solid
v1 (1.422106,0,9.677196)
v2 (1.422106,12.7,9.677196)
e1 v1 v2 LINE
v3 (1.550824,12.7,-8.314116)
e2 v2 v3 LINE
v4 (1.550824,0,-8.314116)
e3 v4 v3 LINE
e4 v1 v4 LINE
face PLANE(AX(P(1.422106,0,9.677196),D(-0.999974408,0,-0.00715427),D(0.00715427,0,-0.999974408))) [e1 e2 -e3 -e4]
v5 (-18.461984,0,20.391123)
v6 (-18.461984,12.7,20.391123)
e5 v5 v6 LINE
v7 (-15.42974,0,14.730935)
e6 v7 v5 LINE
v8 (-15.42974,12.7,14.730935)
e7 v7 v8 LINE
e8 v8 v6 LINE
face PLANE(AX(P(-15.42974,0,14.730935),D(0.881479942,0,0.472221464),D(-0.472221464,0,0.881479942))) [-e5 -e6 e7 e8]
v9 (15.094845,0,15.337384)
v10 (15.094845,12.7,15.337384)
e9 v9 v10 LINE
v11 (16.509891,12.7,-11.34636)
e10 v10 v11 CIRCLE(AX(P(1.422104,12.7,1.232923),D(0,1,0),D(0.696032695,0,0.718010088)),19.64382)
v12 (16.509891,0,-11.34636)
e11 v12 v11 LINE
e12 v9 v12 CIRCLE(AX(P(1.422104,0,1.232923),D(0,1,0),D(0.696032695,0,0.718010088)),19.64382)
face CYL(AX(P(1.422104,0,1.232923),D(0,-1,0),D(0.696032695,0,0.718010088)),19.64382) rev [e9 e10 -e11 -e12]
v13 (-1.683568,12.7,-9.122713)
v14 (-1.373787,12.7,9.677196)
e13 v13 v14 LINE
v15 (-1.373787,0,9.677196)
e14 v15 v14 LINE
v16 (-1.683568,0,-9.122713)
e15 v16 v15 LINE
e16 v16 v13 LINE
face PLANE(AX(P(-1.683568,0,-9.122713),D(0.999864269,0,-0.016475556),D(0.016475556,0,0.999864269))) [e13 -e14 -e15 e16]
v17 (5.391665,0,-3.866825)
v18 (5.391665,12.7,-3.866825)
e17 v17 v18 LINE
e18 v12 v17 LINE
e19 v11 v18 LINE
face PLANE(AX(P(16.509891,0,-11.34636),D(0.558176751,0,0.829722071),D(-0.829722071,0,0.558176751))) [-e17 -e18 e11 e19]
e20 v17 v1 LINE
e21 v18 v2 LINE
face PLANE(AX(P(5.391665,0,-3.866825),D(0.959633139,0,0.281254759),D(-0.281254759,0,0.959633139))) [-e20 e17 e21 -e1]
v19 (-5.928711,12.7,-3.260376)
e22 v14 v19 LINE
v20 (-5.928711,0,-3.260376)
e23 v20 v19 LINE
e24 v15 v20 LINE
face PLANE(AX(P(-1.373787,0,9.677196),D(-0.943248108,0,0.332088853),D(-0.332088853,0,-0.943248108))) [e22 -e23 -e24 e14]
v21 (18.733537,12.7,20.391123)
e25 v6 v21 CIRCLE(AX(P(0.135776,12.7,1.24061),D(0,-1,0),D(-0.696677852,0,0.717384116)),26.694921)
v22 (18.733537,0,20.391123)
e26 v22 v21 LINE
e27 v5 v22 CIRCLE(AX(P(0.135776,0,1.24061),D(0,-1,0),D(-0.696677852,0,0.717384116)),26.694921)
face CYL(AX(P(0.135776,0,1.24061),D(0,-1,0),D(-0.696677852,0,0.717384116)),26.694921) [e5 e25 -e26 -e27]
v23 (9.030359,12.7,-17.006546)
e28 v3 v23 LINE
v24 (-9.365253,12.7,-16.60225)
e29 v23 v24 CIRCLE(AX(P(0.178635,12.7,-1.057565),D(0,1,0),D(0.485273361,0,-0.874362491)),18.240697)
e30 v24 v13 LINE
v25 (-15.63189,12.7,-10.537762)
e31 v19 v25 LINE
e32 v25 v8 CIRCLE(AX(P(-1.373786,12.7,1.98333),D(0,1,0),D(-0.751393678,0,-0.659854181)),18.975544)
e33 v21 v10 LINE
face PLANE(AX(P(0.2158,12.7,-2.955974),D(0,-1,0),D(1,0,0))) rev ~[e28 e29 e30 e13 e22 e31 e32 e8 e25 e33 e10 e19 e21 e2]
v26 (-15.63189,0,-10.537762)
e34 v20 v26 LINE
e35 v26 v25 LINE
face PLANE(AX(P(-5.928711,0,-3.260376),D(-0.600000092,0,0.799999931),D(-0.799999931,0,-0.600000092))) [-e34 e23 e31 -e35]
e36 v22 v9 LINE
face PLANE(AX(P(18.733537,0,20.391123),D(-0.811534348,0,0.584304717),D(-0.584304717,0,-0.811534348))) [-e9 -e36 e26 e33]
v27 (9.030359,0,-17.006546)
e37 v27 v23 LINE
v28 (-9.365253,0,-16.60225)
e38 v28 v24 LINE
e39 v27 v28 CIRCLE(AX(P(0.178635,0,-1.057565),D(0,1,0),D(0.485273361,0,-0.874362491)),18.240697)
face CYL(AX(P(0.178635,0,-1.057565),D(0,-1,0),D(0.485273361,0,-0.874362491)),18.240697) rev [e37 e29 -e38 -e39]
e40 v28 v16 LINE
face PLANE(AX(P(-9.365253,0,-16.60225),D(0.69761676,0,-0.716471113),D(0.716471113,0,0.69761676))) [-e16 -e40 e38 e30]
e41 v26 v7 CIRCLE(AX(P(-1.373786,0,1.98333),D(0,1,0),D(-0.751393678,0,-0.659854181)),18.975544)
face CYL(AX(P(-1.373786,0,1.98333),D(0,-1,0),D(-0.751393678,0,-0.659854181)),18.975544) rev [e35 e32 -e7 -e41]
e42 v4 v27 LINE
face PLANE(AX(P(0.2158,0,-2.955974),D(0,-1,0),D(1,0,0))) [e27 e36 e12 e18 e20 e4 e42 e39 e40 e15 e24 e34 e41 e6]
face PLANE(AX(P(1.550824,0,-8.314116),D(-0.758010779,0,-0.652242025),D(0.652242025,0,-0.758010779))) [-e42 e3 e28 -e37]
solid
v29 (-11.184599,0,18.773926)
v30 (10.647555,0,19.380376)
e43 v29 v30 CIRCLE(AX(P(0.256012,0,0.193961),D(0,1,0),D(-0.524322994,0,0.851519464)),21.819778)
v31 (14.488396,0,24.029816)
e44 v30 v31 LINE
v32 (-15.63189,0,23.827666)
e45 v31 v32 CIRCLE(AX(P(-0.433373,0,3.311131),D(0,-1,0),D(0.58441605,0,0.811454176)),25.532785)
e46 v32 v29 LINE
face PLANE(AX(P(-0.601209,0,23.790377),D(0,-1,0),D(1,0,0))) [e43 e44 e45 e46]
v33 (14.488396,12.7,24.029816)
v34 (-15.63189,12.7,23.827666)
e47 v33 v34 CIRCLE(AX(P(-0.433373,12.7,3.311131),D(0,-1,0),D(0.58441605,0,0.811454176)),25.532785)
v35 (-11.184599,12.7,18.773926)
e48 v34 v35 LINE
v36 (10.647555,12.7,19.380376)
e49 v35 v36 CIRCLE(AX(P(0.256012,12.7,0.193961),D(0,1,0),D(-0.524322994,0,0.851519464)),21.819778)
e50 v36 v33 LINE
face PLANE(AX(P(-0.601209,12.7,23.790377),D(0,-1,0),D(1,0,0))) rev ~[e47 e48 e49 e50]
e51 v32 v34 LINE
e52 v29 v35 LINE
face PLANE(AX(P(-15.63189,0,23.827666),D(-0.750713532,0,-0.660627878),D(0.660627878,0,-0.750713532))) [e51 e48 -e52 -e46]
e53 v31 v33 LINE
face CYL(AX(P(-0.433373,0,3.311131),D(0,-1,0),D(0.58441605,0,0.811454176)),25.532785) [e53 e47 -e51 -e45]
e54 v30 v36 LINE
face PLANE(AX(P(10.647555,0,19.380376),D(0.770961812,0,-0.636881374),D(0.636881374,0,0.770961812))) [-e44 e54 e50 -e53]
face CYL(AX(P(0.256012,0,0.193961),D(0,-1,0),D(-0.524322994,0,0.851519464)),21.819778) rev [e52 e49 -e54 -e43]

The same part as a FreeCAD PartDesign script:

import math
import FreeCAD as App
import Part
import Sketcher

V = App.Vector
Q = App.Units.Quantity

doc = App.newDocument("Part")
body = doc.addObject("PartDesign::Body", "Body")
body.AllowCompound = True

# Sketch on XZ plane
sketch1 = doc.addObject("Sketcher::SketchObject", "Sketch")
body.addObject(sketch1)
sketch1.AttachmentSupport = (doc.XZ_Plane, [""])
sketch1.MapMode = "FlatFace"
sketch1.addGeometry(Part.ArcOfCircle(Part.Circle(V(0, 0, 0), V(0, 0, 1), 22), math.radians(62), math.radians(122)), False)
sketch1.addGeometry(Part.LineSegment(V(11, 19, 0), V(14, 24, 0)), False)
sketch1.addGeometry(Part.ArcOfCircle(Part.Circle(V(0, 3, 0), V(0, 0, 1), 26), math.radians(54), math.radians(127)), False)
sketch1.addGeometry(Part.LineSegment(V(-16, 24, 0), V(-11, 19, 0)), False)
sketch1.addGeometry(Part.ArcOfCircle(Part.Circle(V(-1, 2, 0), V(0, 0, 1), 19), math.radians(138), math.radians(221)), False)
sketch1.addGeometry(Part.LineSegment(V(-15, 15, 0), V(-18, 20, 0)), False)
sketch1.addGeometry(Part.ArcOfCircle(Part.Circle(V(0, 1, 0), V(0, 0, 1), 27), math.radians(134), math.radians(406)), False)
sketch1.addGeometry(Part.LineSegment(V(19, 20, 0), V(15, 15, 0)), False)
sketch1.addGeometry(Part.ArcOfCircle(Part.Circle(V(1, 1, 0), V(0, 0, 1), 20), math.radians(-40), math.radians(46)), False)
sketch1.addGeometry(Part.LineSegment(V(17, -11, 0), V(5, -4, 0)), False)
sketch1.addGeometry(Part.LineSegment(V(5, -4, 0), V(1, 10, 0)), False)
sketch1.addGeometry(Part.LineSegment(V(1, 10, 0), V(2, -8, 0)), False)
sketch1.addGeometry(Part.LineSegment(V(2, -8, 0), V(9, -17, 0)), False)
sketch1.addGeometry(Part.ArcOfCircle(Part.Circle(V(0, -1, 0), V(0, 0, 1), 18), math.radians(-122), math.radians(-61)), False)
sketch1.addGeometry(Part.LineSegment(V(-9, -17, 0), V(-2, -9, 0)), False)
sketch1.addGeometry(Part.LineSegment(V(-2, -9, 0), V(-1, 10, 0)), False)
sketch1.addGeometry(Part.LineSegment(V(-1, 10, 0), V(-6, -3, 0)), False)
sketch1.addGeometry(Part.LineSegment(V(-6, -3, 0), V(-16, -11, 0)), False)
sketch1.addConstraint(Sketcher.Constraint("Coincident", 0, 1, 1, 1))
sketch1.addConstraint(Sketcher.Constraint("Coincident", 1, 2, 2, 1))
sketch1.addConstraint(Sketcher.Constraint("Coincident", 2, 2, 3, 1))
sketch1.addConstraint(Sketcher.Constraint("Coincident", 3, 2, 0, 2))
sketch1.addConstraint(Sketcher.Constraint("Coincident", 4, 1, 5, 1))
sketch1.addConstraint(Sketcher.Constraint("Coincident", 5, 2, 6, 1))
sketch1.addConstraint(Sketcher.Constraint("Coincident", 6, 2, 7, 1))
sketch1.addConstraint(Sketcher.Constraint("Coincident", 7, 2, 8, 2))
sketch1.addConstraint(Sketcher.Constraint("Coincident", 8, 1, 9, 1))
sketch1.addConstraint(Sketcher.Constraint("Coincident", 9, 2, 10, 1))
sketch1.addConstraint(Sketcher.Constraint("Coincident", 10, 2, 11, 1))
sketch1.addConstraint(Sketcher.Constraint("Coincident", 11, 2, 12, 1))
sketch1.addConstraint(Sketcher.Constraint("Coincident", 12, 2, 13, 2))
sketch1.addConstraint(Sketcher.Constraint("Coincident", 13, 1, 14, 1))
sketch1.addConstraint(Sketcher.Constraint("Coincident", 14, 2, 15, 1))
sketch1.addConstraint(Sketcher.Constraint("Coincident", 15, 2, 16, 1))
sketch1.addConstraint(Sketcher.Constraint("Coincident", 16, 2, 17, 1))
sketch1.addConstraint(Sketcher.Constraint("Coincident", 17, 2, 4, 2))
sketch1.addConstraint(Sketcher.Constraint("Horizontal", 5, 2, 6, 2))
sketch1.addConstraint(Sketcher.Constraint("Horizontal", 10, 2, 15, 2))
sketch1.addConstraint(Sketcher.Constraint("Vertical", 4, 3, 15, 2))
sketch1.addConstraint(Sketcher.Constraint("Vertical", 2, 2, 17, 2))
sketch1.addConstraint(Sketcher.Constraint("Radius", 6, Q("26.694921 mm")))
sketch1.addConstraint(Sketcher.Constraint("Radius", 8, Q("19.64382 mm")))
sketch1.addConstraint(Sketcher.Constraint("DistanceY", -1, 1, 5, 2, Q("0.8028001 in")))
sketch1.addConstraint(Sketcher.Constraint("Radius", 0, Q("21.819778 mm")))
sketch1.addConstraint(Sketcher.Constraint("Radius", 2, Q("25.532785 mm")))
sketch1.addConstraint(Sketcher.Constraint("Radius", 4, Q("18.975544 mm")))
sketch1.addConstraint(Sketcher.Constraint("Radius", 13, Q("18.240697 mm")))
sketch1.addConstraint(Sketcher.Constraint("Distance", 1, Q("6.030701 mm")))
sketch1.addConstraint(Sketcher.Constraint("DistanceX", 3, 2, -1, 1, Q("11.184599 mm")))
sketch1.addConstraint(Sketcher.Constraint("DistanceY", 4, 3, 2, 3, Q("1.327801 mm")))
sketch1.addConstraint(Sketcher.Constraint("DistanceX", 4, 3, 0, 3, Q("1.629798 mm")))
sketch1.addConstraint(Sketcher.Constraint("DistanceY", 8, 3, 6, 2, Q("19.1582 mm")))
sketch1.addConstraint(Sketcher.Constraint("Distance", 9, Q("13.39994 mm")))
sketch1.addConstraint(Sketcher.Constraint("Distance", 10, Q("14.113749 mm")))
sketch1.addConstraint(Sketcher.Constraint("Distance", 15, Q("18.802461 mm")))
sketch1.addConstraint(Sketcher.Constraint("Distance", 16, Q("13.71598 mm")))
sketch1.addConstraint(Sketcher.Constraint("DistanceY", -1, 1, 0, 3, Q("0.193961 mm")))
sketch1.addConstraint(Sketcher.Constraint("DistanceY", -1, 1, 2, 3, Q("3.311131 mm")))
sketch1.addConstraint(Sketcher.Constraint("DistanceY", -1, 1, 6, 3, Q("1.24061 mm")))
sketch1.addConstraint(Sketcher.Constraint("DistanceX", 2, 2, -1, 1, Q("15.63189 mm")))
sketch1.addConstraint(Sketcher.Constraint("DistanceX", 4, 1, -1, 1, Q("15.42974 mm")))
sketch1.addConstraint(Sketcher.Constraint("DistanceX", -1, 1, 8, 1, Q("16.509891 mm")))
sketch1.addConstraint(Sketcher.Constraint("DistanceY", 8, 1, -1, 1, Q("11.34636 mm")))
sketch1.addConstraint(Sketcher.Constraint("DistanceX", -1, 1, 12, 2, Q("9.030359 mm")))
sketch1.addConstraint(Sketcher.Constraint("DistanceY", 13, 1, -1, 1, Q("16.60225 mm")))
sketch1.addConstraint(Sketcher.Constraint("DistanceX", 16, 2, -1, 1, Q("5.928711 mm")))
sketch1.addConstraint(Sketcher.Constraint("DistanceX", 2, 3, 6, 3, Q("0.56915 mm")))
sketch1.addConstraint(Sketcher.Constraint("DistanceX", 0, 3, 8, 3, Q("1.166092 mm")))
sketch1.addConstraint(Sketcher.Constraint("DistanceX", 6, 3, 13, 3, Q("0.042858 mm")))
sketch1.addConstraint(Sketcher.Constraint("DistanceX", 13, 3, 8, 3, Q("1.243469 mm")))
sketch1.addConstraint(Sketcher.Constraint("DistanceX", 2, 3, 0, 1, Q("11.080928 mm")))
sketch1.addConstraint(Sketcher.Constraint("DistanceX", 0, 1, 7, 2, Q("4.44729 mm")))
sketch1.addConstraint(Sketcher.Constraint("DistanceX", 13, 3, 9, 2, Q("5.21303 mm")))
sketch1.addConstraint(Sketcher.Constraint("DistanceY", 9, 2, 13, 3, Q("2.80926 mm")))
sketch1.addConstraint(Sketcher.Constraint("DistanceX", 2, 3, 10, 2, Q("1.855479 mm")))
sketch1.addConstraint(Sketcher.Constraint("DistanceX", 11, 2, 9, 2, Q("3.840841 mm")))
sketch1.addConstraint(Sketcher.Constraint("DistanceY", 11, 2, 9, 2, Q("4.447291 mm")))
sketch1.addConstraint(Sketcher.Constraint("DistanceX", 14, 2, 11, 2, Q("3.234392 mm")))
pad1 = doc.addObject("PartDesign::Pad", "Pad")
body.addObject(pad1)
pad1.Profile = sketch1
pad1.Length = Q("0.5 in")
pad1.Reversed = True

doc.recompute()
